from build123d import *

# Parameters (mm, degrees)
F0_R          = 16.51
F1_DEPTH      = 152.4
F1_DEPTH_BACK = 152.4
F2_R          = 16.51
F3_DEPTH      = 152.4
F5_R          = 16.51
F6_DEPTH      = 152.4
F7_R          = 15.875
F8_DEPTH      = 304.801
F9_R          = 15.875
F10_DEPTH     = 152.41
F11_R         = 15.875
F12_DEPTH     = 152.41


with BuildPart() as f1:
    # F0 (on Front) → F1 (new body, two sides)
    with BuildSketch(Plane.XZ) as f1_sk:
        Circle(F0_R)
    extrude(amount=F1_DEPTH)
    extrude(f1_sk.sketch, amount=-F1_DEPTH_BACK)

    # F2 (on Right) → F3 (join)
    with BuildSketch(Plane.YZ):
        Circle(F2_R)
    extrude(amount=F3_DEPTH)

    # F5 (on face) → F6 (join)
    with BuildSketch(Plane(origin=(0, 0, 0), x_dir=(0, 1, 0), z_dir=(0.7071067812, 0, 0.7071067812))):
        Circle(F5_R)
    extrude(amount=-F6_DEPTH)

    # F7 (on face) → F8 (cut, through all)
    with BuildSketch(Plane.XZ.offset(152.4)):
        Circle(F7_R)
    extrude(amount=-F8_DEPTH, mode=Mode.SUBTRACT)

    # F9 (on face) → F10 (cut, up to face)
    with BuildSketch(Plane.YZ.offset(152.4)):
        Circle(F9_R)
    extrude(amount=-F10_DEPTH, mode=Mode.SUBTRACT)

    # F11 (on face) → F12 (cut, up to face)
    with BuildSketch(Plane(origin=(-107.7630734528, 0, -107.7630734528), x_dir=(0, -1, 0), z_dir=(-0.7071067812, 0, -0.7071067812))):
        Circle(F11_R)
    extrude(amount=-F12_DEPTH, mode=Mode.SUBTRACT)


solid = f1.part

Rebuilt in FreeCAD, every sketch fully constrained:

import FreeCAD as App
import Part
import Sketcher
Q = App.Units.Quantity

doc = App.newDocument("Part")
body = doc.addObject("PartDesign::Body", "Body")

sketch1 = body.newObject("Sketcher::SketchObject", "Sketch")
sketch1.AttachmentSupport = (doc.getObject("XZ_Plane"), [""])
sketch1.MapMode = "FlatFace"
sketch1.addGeometry(Part.Circle(App.Vector(0, 0, 0), App.Vector(0, 0, 1), 17), False)
sketch1.addConstraint([
    Sketcher.Constraint("Coincident", 0, 3, -1, 1),
    Sketcher.Constraint("Diameter", 0, Q("1.3 in")),
])
pad1 = body.newObject("PartDesign::Pad", "Pad")
pad1.Profile = sketch1
pad1.Type = "TwoLengths"
pad1.Length = Q("6 in")
pad1.Length2 = Q("6 in")

sketch2 = body.newObject("Sketcher::SketchObject", "Sketch001")
sketch2.AttachmentSupport = (doc.getObject("YZ_Plane"), [""])
sketch2.MapMode = "FlatFace"
sketch2.addGeometry(Part.Circle(App.Vector(0, 0, 0), App.Vector(0, 0, 1), 17), False)
sketch2.addConstraint([
    Sketcher.Constraint("Coincident", 0, 3, -1, 1),
    Sketcher.Constraint("Diameter", 0, Q("1.3 in")),
])
pad2 = body.newObject("PartDesign::Pad", "Pad001")
pad2.Profile = sketch2
pad2.Length = Q("6 in")

sketch3 = body.newObject("Sketcher::SketchObject", "Sketch002")
sketch3.Placement = App.Placement(App.Vector(0, 0, 0), App.Rotation(App.Vector(0, 1, 0), App.Vector(-0.707106781, 0, 0.707106781), App.Vector(0.707106781, 0, 0.707106781), "ZXY"))
sketch3.addGeometry(Part.Circle(App.Vector(0, 0, 0), App.Vector(0, 0, 1), 17), False)
sketch3.addConstraint([
    Sketcher.Constraint("Coincident", 0, 3, -1, 1),
    Sketcher.Constraint("Diameter", 0, Q("1.3 in")),
])
pad3 = body.newObject("PartDesign::Pad", "Pad002")
pad3.Profile = sketch3
pad3.Length = Q("6 in")
pad3.Reversed = True

sketch4 = body.newObject("Sketcher::SketchObject", "Sketch003")
sketch4.AttachmentSupport = (doc.getObject("XZ_Plane"), [""])
sketch4.MapMode = "FlatFace"
sketch4.AttachmentOffset = App.Placement(App.Vector(0, 0, 6 * 25.4), App.Rotation())
sketch4.addGeometry(Part.Circle(App.Vector(0, 0, 0), App.Vector(0, 0, 1), 16), False)
sketch4.addConstraint([
    Sketcher.Constraint("Coincident", 0, 3, -1, 1),
    Sketcher.Constraint("Diameter", 0, Q("1.25 in")),
])
pocket1 = body.newObject("PartDesign::Pocket", "Pocket")
pocket1.Profile = sketch4
pocket1.Type = "ThroughAll"

sketch5 = body.newObject("Sketcher::SketchObject", "Sketch004")
sketch5.AttachmentSupport = (doc.getObject("YZ_Plane"), [""])
sketch5.MapMode = "FlatFace"
sketch5.AttachmentOffset = App.Placement(App.Vector(0, 0, 6 * 25.4), App.Rotation())
sketch5.addGeometry(Part.Circle(App.Vector(0, 0, 0), App.Vector(0, 0, 1), 16), False)
sketch5.addConstraint([
    Sketcher.Constraint("Coincident", 0, 3, -1, 1),
    Sketcher.Constraint("Diameter", 0, Q("1.25 in")),
])
pocket2 = body.newObject("PartDesign::Pocket", "Pocket001")
pocket2.Profile = sketch5
pocket2.Length = 152.41

sketch6 = body.newObject("Sketcher::SketchObject", "Sketch005")
sketch6.Placement = App.Placement(App.Vector(-107.763073, 0, -107.763073), App.Rotation(App.Vector(0, -1, 0), App.Vector(-0.707106781, 0, 0.707106781), App.Vector(-0.707106781, 0, -0.707106781), "ZXY"))
sketch6.addGeometry(Part.Circle(App.Vector(0, 0, 0), App.Vector(0, 0, 1), 16), False)
sketch6.addConstraint([
    Sketcher.Constraint("Coincident", 0, 3, -1, 1),
    Sketcher.Constraint("Diameter", 0, Q("1.25 in")),
])
pocket3 = body.newObject("PartDesign::Pocket", "Pocket002")
pocket3.Profile = sketch6
pocket3.Length = 152.41

doc.recompute()
